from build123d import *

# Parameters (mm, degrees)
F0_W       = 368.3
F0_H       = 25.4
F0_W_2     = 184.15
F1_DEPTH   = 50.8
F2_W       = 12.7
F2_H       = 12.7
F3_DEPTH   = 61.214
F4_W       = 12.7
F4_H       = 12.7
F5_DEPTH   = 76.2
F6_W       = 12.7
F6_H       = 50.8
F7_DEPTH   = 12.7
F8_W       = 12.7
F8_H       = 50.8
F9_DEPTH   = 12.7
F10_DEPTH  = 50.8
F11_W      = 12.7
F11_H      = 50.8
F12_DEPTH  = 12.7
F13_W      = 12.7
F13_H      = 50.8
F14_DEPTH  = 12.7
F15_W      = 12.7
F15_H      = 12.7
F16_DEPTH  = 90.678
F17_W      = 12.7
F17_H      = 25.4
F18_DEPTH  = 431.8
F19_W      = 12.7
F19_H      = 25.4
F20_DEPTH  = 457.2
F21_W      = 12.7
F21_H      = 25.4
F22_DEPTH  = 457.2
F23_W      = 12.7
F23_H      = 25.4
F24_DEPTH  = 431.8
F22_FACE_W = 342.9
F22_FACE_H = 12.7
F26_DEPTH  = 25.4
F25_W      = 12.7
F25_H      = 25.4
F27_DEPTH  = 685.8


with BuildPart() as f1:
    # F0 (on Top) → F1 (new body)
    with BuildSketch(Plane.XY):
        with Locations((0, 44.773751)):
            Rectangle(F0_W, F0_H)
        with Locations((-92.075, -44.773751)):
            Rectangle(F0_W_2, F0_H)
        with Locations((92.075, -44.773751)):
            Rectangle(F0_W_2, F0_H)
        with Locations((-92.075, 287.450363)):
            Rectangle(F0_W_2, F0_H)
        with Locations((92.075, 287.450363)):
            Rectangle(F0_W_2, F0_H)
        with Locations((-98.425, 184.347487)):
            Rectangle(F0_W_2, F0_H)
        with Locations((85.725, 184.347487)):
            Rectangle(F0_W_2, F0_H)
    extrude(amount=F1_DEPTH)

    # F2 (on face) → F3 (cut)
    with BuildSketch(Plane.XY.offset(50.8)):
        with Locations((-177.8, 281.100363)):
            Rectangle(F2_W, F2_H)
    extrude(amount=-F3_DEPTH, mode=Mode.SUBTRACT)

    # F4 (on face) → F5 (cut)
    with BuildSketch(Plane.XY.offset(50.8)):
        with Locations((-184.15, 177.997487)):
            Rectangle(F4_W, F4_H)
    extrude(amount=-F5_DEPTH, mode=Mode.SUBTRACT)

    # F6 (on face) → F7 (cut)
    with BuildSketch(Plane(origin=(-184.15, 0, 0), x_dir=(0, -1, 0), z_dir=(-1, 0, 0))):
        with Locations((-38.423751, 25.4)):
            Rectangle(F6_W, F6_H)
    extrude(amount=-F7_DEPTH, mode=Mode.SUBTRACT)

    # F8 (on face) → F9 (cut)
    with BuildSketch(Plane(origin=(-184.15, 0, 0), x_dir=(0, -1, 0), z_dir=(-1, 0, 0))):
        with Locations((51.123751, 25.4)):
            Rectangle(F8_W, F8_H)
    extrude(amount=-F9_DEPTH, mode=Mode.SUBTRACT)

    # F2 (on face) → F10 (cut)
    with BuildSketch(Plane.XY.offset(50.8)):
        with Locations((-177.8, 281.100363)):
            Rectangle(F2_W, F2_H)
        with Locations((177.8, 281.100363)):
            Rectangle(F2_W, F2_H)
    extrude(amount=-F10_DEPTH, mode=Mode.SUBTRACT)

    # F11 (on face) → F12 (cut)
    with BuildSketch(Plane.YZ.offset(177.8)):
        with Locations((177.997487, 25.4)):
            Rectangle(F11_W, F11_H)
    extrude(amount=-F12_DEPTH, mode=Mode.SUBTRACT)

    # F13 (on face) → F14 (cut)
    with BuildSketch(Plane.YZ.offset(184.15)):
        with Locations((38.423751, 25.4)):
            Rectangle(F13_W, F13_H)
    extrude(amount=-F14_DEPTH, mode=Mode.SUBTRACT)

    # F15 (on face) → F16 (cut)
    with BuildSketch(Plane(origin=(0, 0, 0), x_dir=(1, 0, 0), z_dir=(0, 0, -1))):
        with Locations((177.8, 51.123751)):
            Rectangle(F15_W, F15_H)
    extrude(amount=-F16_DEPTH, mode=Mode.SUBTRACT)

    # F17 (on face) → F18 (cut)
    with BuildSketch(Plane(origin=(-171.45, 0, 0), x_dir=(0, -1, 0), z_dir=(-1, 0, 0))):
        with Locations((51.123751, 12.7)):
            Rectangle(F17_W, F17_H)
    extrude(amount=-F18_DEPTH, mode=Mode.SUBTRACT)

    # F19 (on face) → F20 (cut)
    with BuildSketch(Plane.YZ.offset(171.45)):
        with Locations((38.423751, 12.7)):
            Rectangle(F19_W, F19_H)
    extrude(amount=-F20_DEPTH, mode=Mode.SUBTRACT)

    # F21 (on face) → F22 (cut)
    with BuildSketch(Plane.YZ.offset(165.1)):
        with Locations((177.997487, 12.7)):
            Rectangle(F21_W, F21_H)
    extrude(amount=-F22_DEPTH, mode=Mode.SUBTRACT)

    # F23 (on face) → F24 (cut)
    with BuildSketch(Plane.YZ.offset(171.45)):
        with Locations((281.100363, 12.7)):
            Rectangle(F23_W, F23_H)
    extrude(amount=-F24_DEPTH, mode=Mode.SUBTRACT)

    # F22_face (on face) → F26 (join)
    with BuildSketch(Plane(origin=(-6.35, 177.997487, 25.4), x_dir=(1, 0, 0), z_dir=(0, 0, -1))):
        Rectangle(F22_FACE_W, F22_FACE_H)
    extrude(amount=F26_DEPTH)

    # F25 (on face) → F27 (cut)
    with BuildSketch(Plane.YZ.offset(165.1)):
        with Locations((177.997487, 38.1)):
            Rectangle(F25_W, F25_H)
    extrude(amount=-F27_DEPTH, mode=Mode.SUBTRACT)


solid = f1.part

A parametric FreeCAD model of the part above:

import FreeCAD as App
import Part
import Sketcher

V = App.Vector
Q = App.Units.Quantity


def add_polygon(sketch, points):
    """Adds a closed chain of lines whose ends are joined by coincident constraints."""
    first, n = sketch.GeometryCount, len(points)
    for a, b in zip(points, points[1:] + points[:1]):
        sketch.addGeometry(Part.LineSegment(App.Vector(*a, 0), App.Vector(*b, 0)), False)
    for i in range(n):
        sketch.addConstraint(Sketcher.Constraint("Coincident", first + i, 2, first + (i + 1) % n, 1))

doc = App.newDocument("Part")
body = doc.addObject("PartDesign::Body", "Body")
body.AllowCompound = True

# Sketch on XY plane
sketch1 = body.newObject("Sketcher::SketchObject", "Sketch")
sketch1.AttachmentSupport = (doc.getObject("XY_Plane"), [""])
sketch1.MapMode = "FlatFace"
add_polygon(sketch1, [(-184, 57), (-184, 32), (184, 32), (184, 57)])  # lines 0-3
add_polygon(sketch1, [(-184, -32), (-184, -57), (184, -57), (184, -32)])  # lines 4-7
add_polygon(sketch1, [(-184, 300), (-184, 275), (184, 275), (184, 300)])  # lines 8-11
add_polygon(sketch1, [(-190, 197), (-190, 172), (178, 172), (178, 197)])  # lines 12-15
sketch1.addConstraint(Sketcher.Constraint("Vertical", 0))
sketch1.addConstraint(Sketcher.Constraint("Horizontal", 1))
sketch1.addConstraint(Sketcher.Constraint("Vertical", 2))
sketch1.addConstraint(Sketcher.Constraint("Horizontal", 3))
sketch1.addConstraint(Sketcher.Constraint("Vertical", 4))
sketch1.addConstraint(Sketcher.Constraint("Horizontal", 5))
sketch1.addConstraint(Sketcher.Constraint("Vertical", 6))
sketch1.addConstraint(Sketcher.Constraint("Horizontal", 7))
sketch1.addConstraint(Sketcher.Constraint("Vertical", 8))
sketch1.addConstraint(Sketcher.Constraint("Horizontal", 9))
sketch1.addConstraint(Sketcher.Constraint("Vertical", 10))
sketch1.addConstraint(Sketcher.Constraint("Horizontal", 11))
sketch1.addConstraint(Sketcher.Constraint("Vertical", 12))
sketch1.addConstraint(Sketcher.Constraint("Horizontal", 13))
sketch1.addConstraint(Sketcher.Constraint("Vertical", 14))
sketch1.addConstraint(Sketcher.Constraint("Horizontal", 15))
sketch1.addConstraint(Sketcher.Constraint("Symmetric", 2, 2, 4, 2, -1, 1))
sketch1.addConstraint(Sketcher.Constraint("Symmetric", 0, 2, 6, 2, -1, 1))
sketch1.addConstraint(Sketcher.Constraint("Vertical", 3, 2, 4, 2))
sketch1.addConstraint(Sketcher.Constraint("Vertical", 7, 2, 8, 2))
sketch1.addConstraint(Sketcher.Constraint("Vertical", 6, 2, 9, 2))
sketch1.addConstraint(Sketcher.Constraint("Equal", 11, 13))
sketch1.addConstraint(Sketcher.Constraint("Equal", 6, 8))
sketch1.addConstraint(Sketcher.Constraint("Equal", 10, 12))
sketch1.addConstraint(Sketcher.Constraint("DistanceY", 0, 2, 0, 1, Q("1 in")))
sketch1.addConstraint(Sketcher.Constraint("DistanceX", 1, 1, 1, 2, Q("14.5 in")))
sketch1.addConstraint(Sketcher.Constraint("DistanceX", -1, 1, 13, 2, Q("7 in")))
sketch1.addConstraint(Sketcher.Constraint("DistanceY", 4, 2, 3, 2, Q("114.947502 mm")))
sketch1.addConstraint(Sketcher.Constraint("DistanceY", 3, 2, 8, 2, Q("217.276612 mm")))
sketch1.addConstraint(Sketcher.Constraint("DistanceY", 7, 2, 12, 2, Q("203.721238 mm")))
pad1 = body.newObject("PartDesign::Pad", "Pad")
pad1.Profile = sketch1
pad1.Length = Q("2 in")

# Sketch on XY plane
sketch2 = body.newObject("Sketcher::SketchObject", "Sketch001")
sketch2.AttachmentSupport = (doc.getObject("XY_Plane"), [""])
sketch2.MapMode = "FlatFace"
sketch2.AttachmentOffset = App.Placement(V(0, 0, 2 * 25.4), App.Rotation())
add_polygon(sketch2, [(-184, 287), (-184, 275), (-171, 275), (-171, 287)])  # lines 0-3
sketch2.addConstraint(Sketcher.Constraint("Vertical", 0))
sketch2.addConstraint(Sketcher.Constraint("Horizontal", 1))
sketch2.addConstraint(Sketcher.Constraint("Vertical", 2))
sketch2.addConstraint(Sketcher.Constraint("Horizontal", 3))
sketch2.addConstraint(Sketcher.Constraint("Equal", 3, 0))
sketch2.addConstraint(Sketcher.Constraint("DistanceX", 1, 1, 1, 2, Q("0.5 in")))
sketch2.addConstraint(Sketcher.Constraint("DistanceX", 0, 2, -1, 1, Q("7.25 in")))
sketch2.addConstraint(Sketcher.Constraint("DistanceY", -1, 1, 0, 2, Q("274.750363 mm")))
pocket1 = body.newObject("PartDesign::Pocket", "Pocket")
pocket1.Profile = sketch2
pocket1.Length = Q("2.41 in")

# Sketch on XY plane
sketch3 = body.newObject("Sketcher::SketchObject", "Sketch002")
sketch3.AttachmentSupport = (doc.getObject("XY_Plane"), [""])
sketch3.MapMode = "FlatFace"
sketch3.AttachmentOffset = App.Placement(V(0, 0, 2 * 25.4), App.Rotation())
add_polygon(sketch3, [(-190, 184), (-190, 172), (-178, 172), (-178, 184)])  # lines 0-3
sketch3.addConstraint(Sketcher.Constraint("Vertical", 0))
sketch3.addConstraint(Sketcher.Constraint("Horizontal", 1))
sketch3.addConstraint(Sketcher.Constraint("Vertical", 2))
sketch3.addConstraint(Sketcher.Constraint("Horizontal", 3))
sketch3.addConstraint(Sketcher.Constraint("Equal", 3, 0))
sketch3.addConstraint(Sketcher.Constraint("DistanceX", 1, 1, 1, 2, Q("0.5 in")))
sketch3.addConstraint(Sketcher.Constraint("DistanceX", 1, 2, -1, 1, Q("7 in")))
sketch3.addConstraint(Sketcher.Constraint("DistanceY", -1, 1, 0, 2, Q("171.647487 mm")))
pocket2 = body.newObject("PartDesign::Pocket", "Pocket001")
pocket2.Profile = sketch3
pocket2.Length = Q("3 in")

# Sketch on YZ plane
sketch4 = body.newObject("Sketcher::SketchObject", "Sketch003")
sketch4.AttachmentSupport = (doc.getObject("YZ_Plane"), [""])
sketch4.MapMode = "FlatFace"
sketch4.AttachmentOffset = App.Placement(V(0, 0, -7.25 * 25.4), App.Rotation())
add_polygon(sketch4, [(45, 51), (45, 0), (32, 0), (32, 51)])  # lines 0-3
sketch4.addConstraint(Sketcher.Constraint("Vertical", 0))
sketch4.addConstraint(Sketcher.Constraint("Horizontal", 1))
sketch4.addConstraint(Sketcher.Constraint("Vertical", 2))
sketch4.addConstraint(Sketcher.Constraint("Horizontal", 3))
sketch4.addConstraint(Sketcher.Constraint("PointOnObject", 0, 2, -1))
sketch4.addConstraint(Sketcher.Constraint("DistanceY", 0, 2, 0, 1, Q("2 in")))
sketch4.addConstraint(Sketcher.Constraint("DistanceX", 1, 2, 1, 1, Q("0.5 in")))
sketch4.addConstraint(Sketcher.Constraint("DistanceX", -1, 1, 0, 2, Q("44.773751 mm")))
pocket3 = body.newObject("PartDesign::Pocket", "Pocket002")
pocket3.Profile = sketch4
pocket3.Length = Q("0.5 in")
pocket3.Reversed = True

# Sketch on YZ plane
sketch5 = body.newObject("Sketcher::SketchObject", "Sketch004")
sketch5.AttachmentSupport = (doc.getObject("YZ_Plane"), [""])
sketch5.MapMode = "FlatFace"
sketch5.AttachmentOffset = App.Placement(V(0, 0, -7.25 * 25.4), App.Rotation())
add_polygon(sketch5, [(-45, 51), (-45, 0), (-57, 0), (-57, 51)])  # lines 0-3
sketch5.addConstraint(Sketcher.Constraint("Vertical", 0))
sketch5.addConstraint(Sketcher.Constraint("Horizontal", 1))
sketch5.addConstraint(Sketcher.Constraint("Vertical", 2))
sketch5.addConstraint(Sketcher.Constraint("Horizontal", 3))
sketch5.addConstraint(Sketcher.Constraint("PointOnObject", 0, 2, -1))
sketch5.addConstraint(Sketcher.Constraint("DistanceY", 0, 2, 0, 1, Q("2 in")))
sketch5.addConstraint(Sketcher.Constraint("DistanceX", 1, 2, 1, 1, Q("0.5 in")))
sketch5.addConstraint(Sketcher.Constraint("DistanceX", 0, 2, -1, 1, Q("44.773751 mm")))
pocket4 = body.newObject("PartDesign::Pocket", "Pocket003")
pocket4.Profile = sketch5
pocket4.Length = Q("0.5 in")
pocket4.Reversed = True

# Sketch on XY plane
sketch6 = body.newObject("Sketcher::SketchObject", "Sketch005")
sketch6.AttachmentSupport = (doc.getObject("XY_Plane"), [""])
sketch6.MapMode = "FlatFace"
sketch6.AttachmentOffset = App.Placement(V(0, 0, 2 * 25.4), App.Rotation())
add_polygon(sketch6, [(-184, 287), (-184, 275), (-171, 275), (-171, 287)])  # lines 0-3
add_polygon(sketch6, [(171, 287), (171, 275), (184, 275), (184, 287)])  # lines 4-7
sketch6.addConstraint(Sketcher.Constraint("Vertical", 0))
sketch6.addConstraint(Sketcher.Constraint("Horizontal", 1))
sketch6.addConstraint(Sketcher.Constraint("Vertical", 2))
sketch6.addConstraint(Sketcher.Constraint("Horizontal", 3))
sketch6.addConstraint(Sketcher.Constraint("Vertical", 4))
sketch6.addConstraint(Sketcher.Constraint("Horizontal", 5))
sketch6.addConstraint(Sketcher.Constraint("Vertical", 6))
sketch6.addConstraint(Sketcher.Constraint("Horizontal", 7))
sketch6.addConstraint(Sketcher.Constraint("Symmetric", 1, 2, 4, 2, -2))
sketch6.addConstraint(Sketcher.Constraint("Symmetric", 3, 2, 6, 2, -2))
sketch6.addConstraint(Sketcher.Constraint("Equal", 7, 0))
sketch6.addConstraint(Sketcher.Constraint("DistanceX", 1, 1, 1, 2, Q("0.5 in")))
sketch6.addConstraint(Sketcher.Constraint("DistanceX", 0, 2, 4, 2, Q("14 in")))
sketch6.addConstraint(Sketcher.Constraint("DistanceY", -1, 1, 0, 2, Q("274.750363 mm")))
pocket5 = body.newObject("PartDesign::Pocket", "Pocket004")
pocket5.Profile = sketch6
pocket5.Length = Q("2 in")

# Sketch on YZ plane
sketch7 = body.newObject("Sketcher::SketchObject", "Sketch006")
sketch7.AttachmentSupport = (doc.getObject("YZ_Plane"), [""])
sketch7.MapMode = "FlatFace"
sketch7.AttachmentOffset = App.Placement(V(0, 0, 7 * 25.4), App.Rotation())
add_polygon(sketch7, [(172, 51), (172, 0), (184, 0), (184, 51)])  # lines 0-3
sketch7.addConstraint(Sketcher.Constraint("Vertical", 0))
sketch7.addConstraint(Sketcher.Constraint("Horizontal", 1))
sketch7.addConstraint(Sketcher.Constraint("Vertical", 2))
sketch7.addConstraint(Sketcher.Constraint("Horizontal", 3))
sketch7.addConstraint(Sketcher.Constraint("PointOnObject", 0, 2, -1))
sketch7.addConstraint(Sketcher.Constraint("DistanceY", 0, 2, 0, 1, Q("2 in")))
sketch7.addConstraint(Sketcher.Constraint("DistanceX", 1, 1, 1, 2, Q("0.5 in")))
sketch7.addConstraint(Sketcher.Constraint("DistanceX", -1, 1, 0, 2, Q("171.647487 mm")))
pocket6 = body.newObject("PartDesign::Pocket", "Pocket005")
pocket6.Profile = sketch7
pocket6.Length = Q("0.5 in")

# Sketch on YZ plane
sketch8 = body.newObject("Sketcher::SketchObject", "Sketch007")
sketch8.AttachmentSupport = (doc.getObject("YZ_Plane"), [""])
sketch8.MapMode = "FlatFace"
sketch8.AttachmentOffset = App.Placement(V(0, 0, 7.25 * 25.4), App.Rotation())
add_polygon(sketch8, [(32, 51), (32, 0), (45, 0), (45, 51)])  # lines 0-3
sketch8.addConstraint(Sketcher.Constraint("Vertical", 0))
sketch8.addConstraint(Sketcher.Constraint("Horizontal", 1))
sketch8.addConstraint(Sketcher.Constraint("Vertical", 2))
sketch8.addConstraint(Sketcher.Constraint("Horizontal", 3))
sketch8.addConstraint(Sketcher.Constraint("PointOnObject", 0, 2, -1))
sketch8.addConstraint(Sketcher.Constraint("DistanceY", 0, 2, 0, 1, Q("2 in")))
sketch8.addConstraint(Sketcher.Constraint("DistanceX", 1, 1, 1, 2, Q("0.5 in")))
sketch8.addConstraint(Sketcher.Constraint("DistanceX", -1, 1, 0, 2, Q("32.073751 mm")))
pocket7 = body.newObject("PartDesign::Pocket", "Pocket006")
pocket7.Profile = sketch8
pocket7.Length = Q("0.5 in")

# Sketch on XY plane
sketch9 = body.newObject("Sketcher::SketchObject", "Sketch008")
sketch9.AttachmentSupport = (doc.getObject("XY_Plane"), [""])
sketch9.MapMode = "FlatFace"
add_polygon(sketch9, [(171, -57), (171, -45), (184, -45), (184, -57)])  # lines 0-3
sketch9.addConstraint(Sketcher.Constraint("Vertical", 0))
sketch9.addConstraint(Sketcher.Constraint("Horizontal", 1))
sketch9.addConstraint(Sketcher.Constraint("Vertical", 2))
sketch9.addConstraint(Sketcher.Constraint("Horizontal", 3))
sketch9.addConstraint(Sketcher.Constraint("Equal", 3, 0))
sketch9.addConstraint(Sketcher.Constraint("DistanceX", 1, 1, 1, 2, Q("0.5 in")))
sketch9.addConstraint(Sketcher.Constraint("DistanceX", -1, 1, 0, 2, Q("6.75 in")))
sketch9.addConstraint(Sketcher.Constraint("DistanceY", 0, 2, -1, 1, Q("44.773751 mm")))
pocket8 = body.newObject("PartDesign::Pocket", "Pocket007")
pocket8.Profile = sketch9
pocket8.Length = Q("3.57 in")
pocket8.Reversed = True

# Sketch on YZ plane
sketch10 = body.newObject("Sketcher::SketchObject", "Sketch009")
sketch10.AttachmentSupport = (doc.getObject("YZ_Plane"), [""])
sketch10.MapMode = "FlatFace"
sketch10.AttachmentOffset = App.Placement(V(0, 0, -6.75 * 25.4), App.Rotation())
add_polygon(sketch10, [(-45, 25), (-45, 0), (-57, 0), (-57, 25)])  # lines 0-3
sketch10.addConstraint(Sketcher.Constraint("Vertical", 0))
sketch10.addConstraint(Sketcher.Constraint("Horizontal", 1))
sketch10.addConstraint(Sketcher.Constraint("Vertical", 2))
sketch10.addConstraint(Sketcher.Constraint("Horizontal", 3))
sketch10.addConstraint(Sketcher.Constraint("PointOnObject", 0, 2, -1))
sketch10.addConstraint(Sketcher.Constraint("DistanceY", 0, 2, 0, 1, Q("1 in")))
sketch10.addConstraint(Sketcher.Constraint("DistanceX", 1, 2, 1, 1, Q("0.5 in")))
sketch10.addConstraint(Sketcher.Constraint("DistanceX", 0, 2, -1, 1, Q("44.773751 mm")))
pocket9 = body.newObject("PartDesign::Pocket", "Pocket008")
pocket9.Profile = sketch10
pocket9.Length = Q("17 in")
pocket9.Reversed = True

# Sketch on YZ plane
sketch11 = body.newObject("Sketcher::SketchObject", "Sketch010")
sketch11.AttachmentSupport = (doc.getObject("YZ_Plane"), [""])
sketch11.MapMode = "FlatFace"
sketch11.AttachmentOffset = App.Placement(V(0, 0, 6.75 * 25.4), App.Rotation())
add_polygon(sketch11, [(32, 25), (32, 0), (45, 0), (45, 25)])  # lines 0-3
sketch11.addConstraint(Sketcher.Constraint("Vertical", 0))
sketch11.addConstraint(Sketcher.Constraint("Horizontal", 1))
sketch11.addConstraint(Sketcher.Constraint("Vertical", 2))
sketch11.addConstraint(Sketcher.Constraint("Horizontal", 3))
sketch11.addConstraint(Sketcher.Constraint("PointOnObject", 0, 2, -1))
sketch11.addConstraint(Sketcher.Constraint("DistanceY", 0, 2, 0, 1, Q("1 in")))
sketch11.addConstraint(Sketcher.Constraint("DistanceX", 1, 1, 1, 2, Q("0.5 in")))
sketch11.addConstraint(Sketcher.Constraint("DistanceX", -1, 1, 0, 2, Q("32.073751 mm")))
pocket10 = body.newObject("PartDesign::Pocket", "Pocket009")
pocket10.Profile = sketch11
pocket10.Length = Q("18 in")

# Sketch on YZ plane
sketch12 = body.newObject("Sketcher::SketchObject", "Sketch011")
sketch12.AttachmentSupport = (doc.getObject("YZ_Plane"), [""])
sketch12.MapMode = "FlatFace"
sketch12.AttachmentOffset = App.Placement(V(0, 0, 6.5 * 25.4), App.Rotation())
add_polygon(sketch12, [(172, 25), (172, 0), (184, 0), (184, 25)])  # lines 0-3
sketch12.addConstraint(Sketcher.Constraint("Vertical", 0))
sketch12.addConstraint(Sketcher.Constraint("Horizontal", 1))
sketch12.addConstraint(Sketcher.Constraint("Vertical", 2))
sketch12.addConstraint(Sketcher.Constraint("Horizontal", 3))
sketch12.addConstraint(Sketcher.Constraint("PointOnObject", 0, 2, -1))
sketch12.addConstraint(Sketcher.Constraint("DistanceY", 0, 2, 0, 1, Q("1 in")))
sketch12.addConstraint(Sketcher.Constraint("DistanceX", 1, 1, 1, 2, Q("0.5 in")))
sketch12.addConstraint(Sketcher.Constraint("DistanceX", -1, 1, 0, 2, Q("171.647487 mm")))
pocket11 = body.newObject("PartDesign::Pocket", "Pocket010")
pocket11.Profile = sketch12
pocket11.Length = Q("18 in")

# Sketch on YZ plane
sketch13 = body.newObject("Sketcher::SketchObject", "Sketch012")
sketch13.AttachmentSupport = (doc.getObject("YZ_Plane"), [""])
sketch13.MapMode = "FlatFace"
sketch13.AttachmentOffset = App.Placement(V(0, 0, 6.75 * 25.4), App.Rotation())
add_polygon(sketch13, [(275, 25), (275, 0), (287, 0), (287, 25)])  # lines 0-3
sketch13.addConstraint(Sketcher.Constraint("Vertical", 0))
sketch13.addConstraint(Sketcher.Constraint("Horizontal", 1))
sketch13.addConstraint(Sketcher.Constraint("Vertical", 2))
sketch13.addConstraint(Sketcher.Constraint("Horizontal", 3))
sketch13.addConstraint(Sketcher.Constraint("PointOnObject", 0, 2, -1))
sketch13.addConstraint(Sketcher.Constraint("DistanceY", 0, 2, 0, 1, Q("1 in")))
sketch13.addConstraint(Sketcher.Constraint("DistanceX", 1, 1, 1, 2, Q("0.5 in")))
sketch13.addConstraint(Sketcher.Constraint("DistanceX", -1, 1, 0, 2, Q("274.750363 mm")))
pocket12 = body.newObject("PartDesign::Pocket", "Pocket011")
pocket12.Profile = sketch13
pocket12.Length = Q("17 in")

# Sketch on XY plane
sketch14 = body.newObject("Sketcher::SketchObject", "Sketch013")
sketch14.AttachmentSupport = (doc.getObject("XY_Plane"), [""])
sketch14.MapMode = "FlatFace"
sketch14.AttachmentOffset = App.Placement(V(0, 0, 1 * 25.4), App.Rotation())
add_polygon(sketch14, [(-178, 172), (-178, 184), (165, 184), (165, 172)])  # lines 0-3
sketch14.addConstraint(Sketcher.Constraint("Vertical", 0))
sketch14.addConstraint(Sketcher.Constraint("Horizontal", 1))
sketch14.addConstraint(Sketcher.Constraint("Vertical", 2))
sketch14.addConstraint(Sketcher.Constraint("Horizontal", 3))
sketch14.addConstraint(Sketcher.Constraint("DistanceX", 1, 1, 1, 2, Q("13.5 in")))
sketch14.addConstraint(Sketcher.Constraint("DistanceY", 0, 1, 0, 2, Q("0.5 in")))
sketch14.addConstraint(Sketcher.Constraint("DistanceX", 0, 2, -1, 1, Q("7 in")))
sketch14.addConstraint(Sketcher.Constraint("DistanceY", -1, 1, 0, 2, Q("184.347487 mm")))
pad2 = body.newObject("PartDesign::Pad", "Pad001")
pad2.Profile = sketch14
pad2.Length = Q("1 in")
pad2.Reversed = True

# Sketch on YZ plane
sketch15 = body.newObject("Sketcher::SketchObject", "Sketch014")
sketch15.AttachmentSupport = (doc.getObject("YZ_Plane"), [""])
sketch15.MapMode = "FlatFace"
sketch15.AttachmentOffset = App.Placement(V(0, 0, 6.5 * 25.4), App.Rotation())
add_polygon(sketch15, [(172, 51), (172, 25), (184, 25), (184, 51)])  # lines 0-3
sketch15.addConstraint(Sketcher.Constraint("Vertical", 0))
sketch15.addConstraint(Sketcher.Constraint("Horizontal", 1))
sketch15.addConstraint(Sketcher.Constraint("Vertical", 2))
sketch15.addConstraint(Sketcher.Constraint("Horizontal", 3))
sketch15.addConstraint(Sketcher.Constraint("DistanceY", 0, 2, 0, 1, Q("1 in")))
sketch15.addConstraint(Sketcher.Constraint("DistanceX", 1, 1, 1, 2, Q("0.5 in")))
sketch15.addConstraint(Sketcher.Constraint("DistanceY", -1, 1, 0, 2, Q("1 in")))
sketch15.addConstraint(Sketcher.Constraint("DistanceX", -1, 1, 0, 2, Q("171.647487 mm")))
pocket13 = body.newObject("PartDesign::Pocket", "Pocket012")
pocket13.Profile = sketch15
pocket13.Length = Q("27 in")

doc.recompute()
